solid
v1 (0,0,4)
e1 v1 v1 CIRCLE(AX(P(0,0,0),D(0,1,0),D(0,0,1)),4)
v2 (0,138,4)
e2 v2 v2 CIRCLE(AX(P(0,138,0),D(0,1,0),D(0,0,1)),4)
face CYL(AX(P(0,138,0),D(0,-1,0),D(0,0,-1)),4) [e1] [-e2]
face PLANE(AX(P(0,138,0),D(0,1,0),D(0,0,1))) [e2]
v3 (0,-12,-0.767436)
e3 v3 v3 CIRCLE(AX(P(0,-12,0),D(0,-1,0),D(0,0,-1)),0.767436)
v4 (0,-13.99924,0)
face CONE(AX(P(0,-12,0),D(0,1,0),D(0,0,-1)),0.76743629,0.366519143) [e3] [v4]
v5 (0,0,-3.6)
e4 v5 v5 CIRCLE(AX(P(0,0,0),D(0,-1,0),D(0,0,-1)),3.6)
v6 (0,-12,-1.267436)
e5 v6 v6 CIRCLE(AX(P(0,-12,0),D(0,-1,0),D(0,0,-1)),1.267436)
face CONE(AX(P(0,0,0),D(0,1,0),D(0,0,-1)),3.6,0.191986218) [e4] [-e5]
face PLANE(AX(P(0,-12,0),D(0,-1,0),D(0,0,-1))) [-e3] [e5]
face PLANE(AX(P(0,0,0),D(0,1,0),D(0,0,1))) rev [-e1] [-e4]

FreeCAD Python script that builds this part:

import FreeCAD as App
import Part
import Sketcher

V = App.Vector
Q = App.Units.Quantity


def add_polygon(sketch, points):
    """Adds a closed chain of lines whose ends are joined by coincident constraints."""
    first, n = sketch.GeometryCount, len(points)
    for a, b in zip(points, points[1:] + points[:1]):
        sketch.addGeometry(Part.LineSegment(App.Vector(*a, 0), App.Vector(*b, 0)), False)
    for i in range(n):
        sketch.addConstraint(Sketcher.Constraint("Coincident", first + i, 2, first + (i + 1) % n, 1))

doc = App.newDocument("Part")
body = doc.addObject("PartDesign::Body", "Body")

sketch1 = body.newObject("Sketcher::SketchObject", "Sketch")
sketch1.AttachmentSupport = (doc.getObject("XZ_Plane"), [""])
sketch1.MapMode = "FlatFace"
sketch1.addGeometry(Part.Circle(V(0, 0, 0), V(0, 0, 1), 4), False)
sketch1.addConstraint([
    Sketcher.Constraint("Coincident", 0, 3, -1, 1),
    Sketcher.Constraint("Diameter", 0, 8.0),
])
pad1 = body.newObject("PartDesign::Pad", "Pad")
pad1.Profile = sketch1
pad1.Length = 138
pad1.Reversed = True

sketch2 = body.newObject("Sketcher::SketchObject", "Sketch001")
sketch2.AttachmentSupport = (doc.getObject("XZ_Plane"), [""])
sketch2.MapMode = "FlatFace"
sketch2.addGeometry(Part.Circle(V(0, 0, 0), V(0, 0, 1), 3.6), False)
sketch2.addConstraint([
    Sketcher.Constraint("Coincident", 0, 3, -1, 1),
    Sketcher.Constraint("Diameter", 0, 7.2),
])
pad2 = body.newObject("PartDesign::Pad", "Pad001")
pad2.Profile = sketch2
pad2.Length = 12
pad2.TaperAngle = -11

sketch3 = body.newObject("Sketcher::SketchObject", "Sketch002")
sketch3.AttachmentSupport = (doc.getObject("YZ_Plane"), [""])
sketch3.MapMode = "FlatFace"
add_polygon(sketch3, [(-12, 0), (-12, 0.8), (-14, 0)])
sketch3.addConstraint([
    Sketcher.Constraint("Vertical", 0),
    Sketcher.Constraint("Horizontal", 2),
    Sketcher.Constraint("PointOnObject", 1, 2, -1),
    Sketcher.Constraint("Angle", 1, Q("-159 deg")),
    Sketcher.Constraint("DistanceX", 0, 2, -1, 1, 12.0),
    Sketcher.Constraint("DistanceX", 2, 1, 2, 2, 1.99924),
])
revolution = body.newObject("PartDesign::Revolution", "Revolution")
revolution.Profile = sketch3
revolution.ReferenceAxis = (sketch3, ["H_Axis"])
revolution.Angle = 360

doc.recompute()
